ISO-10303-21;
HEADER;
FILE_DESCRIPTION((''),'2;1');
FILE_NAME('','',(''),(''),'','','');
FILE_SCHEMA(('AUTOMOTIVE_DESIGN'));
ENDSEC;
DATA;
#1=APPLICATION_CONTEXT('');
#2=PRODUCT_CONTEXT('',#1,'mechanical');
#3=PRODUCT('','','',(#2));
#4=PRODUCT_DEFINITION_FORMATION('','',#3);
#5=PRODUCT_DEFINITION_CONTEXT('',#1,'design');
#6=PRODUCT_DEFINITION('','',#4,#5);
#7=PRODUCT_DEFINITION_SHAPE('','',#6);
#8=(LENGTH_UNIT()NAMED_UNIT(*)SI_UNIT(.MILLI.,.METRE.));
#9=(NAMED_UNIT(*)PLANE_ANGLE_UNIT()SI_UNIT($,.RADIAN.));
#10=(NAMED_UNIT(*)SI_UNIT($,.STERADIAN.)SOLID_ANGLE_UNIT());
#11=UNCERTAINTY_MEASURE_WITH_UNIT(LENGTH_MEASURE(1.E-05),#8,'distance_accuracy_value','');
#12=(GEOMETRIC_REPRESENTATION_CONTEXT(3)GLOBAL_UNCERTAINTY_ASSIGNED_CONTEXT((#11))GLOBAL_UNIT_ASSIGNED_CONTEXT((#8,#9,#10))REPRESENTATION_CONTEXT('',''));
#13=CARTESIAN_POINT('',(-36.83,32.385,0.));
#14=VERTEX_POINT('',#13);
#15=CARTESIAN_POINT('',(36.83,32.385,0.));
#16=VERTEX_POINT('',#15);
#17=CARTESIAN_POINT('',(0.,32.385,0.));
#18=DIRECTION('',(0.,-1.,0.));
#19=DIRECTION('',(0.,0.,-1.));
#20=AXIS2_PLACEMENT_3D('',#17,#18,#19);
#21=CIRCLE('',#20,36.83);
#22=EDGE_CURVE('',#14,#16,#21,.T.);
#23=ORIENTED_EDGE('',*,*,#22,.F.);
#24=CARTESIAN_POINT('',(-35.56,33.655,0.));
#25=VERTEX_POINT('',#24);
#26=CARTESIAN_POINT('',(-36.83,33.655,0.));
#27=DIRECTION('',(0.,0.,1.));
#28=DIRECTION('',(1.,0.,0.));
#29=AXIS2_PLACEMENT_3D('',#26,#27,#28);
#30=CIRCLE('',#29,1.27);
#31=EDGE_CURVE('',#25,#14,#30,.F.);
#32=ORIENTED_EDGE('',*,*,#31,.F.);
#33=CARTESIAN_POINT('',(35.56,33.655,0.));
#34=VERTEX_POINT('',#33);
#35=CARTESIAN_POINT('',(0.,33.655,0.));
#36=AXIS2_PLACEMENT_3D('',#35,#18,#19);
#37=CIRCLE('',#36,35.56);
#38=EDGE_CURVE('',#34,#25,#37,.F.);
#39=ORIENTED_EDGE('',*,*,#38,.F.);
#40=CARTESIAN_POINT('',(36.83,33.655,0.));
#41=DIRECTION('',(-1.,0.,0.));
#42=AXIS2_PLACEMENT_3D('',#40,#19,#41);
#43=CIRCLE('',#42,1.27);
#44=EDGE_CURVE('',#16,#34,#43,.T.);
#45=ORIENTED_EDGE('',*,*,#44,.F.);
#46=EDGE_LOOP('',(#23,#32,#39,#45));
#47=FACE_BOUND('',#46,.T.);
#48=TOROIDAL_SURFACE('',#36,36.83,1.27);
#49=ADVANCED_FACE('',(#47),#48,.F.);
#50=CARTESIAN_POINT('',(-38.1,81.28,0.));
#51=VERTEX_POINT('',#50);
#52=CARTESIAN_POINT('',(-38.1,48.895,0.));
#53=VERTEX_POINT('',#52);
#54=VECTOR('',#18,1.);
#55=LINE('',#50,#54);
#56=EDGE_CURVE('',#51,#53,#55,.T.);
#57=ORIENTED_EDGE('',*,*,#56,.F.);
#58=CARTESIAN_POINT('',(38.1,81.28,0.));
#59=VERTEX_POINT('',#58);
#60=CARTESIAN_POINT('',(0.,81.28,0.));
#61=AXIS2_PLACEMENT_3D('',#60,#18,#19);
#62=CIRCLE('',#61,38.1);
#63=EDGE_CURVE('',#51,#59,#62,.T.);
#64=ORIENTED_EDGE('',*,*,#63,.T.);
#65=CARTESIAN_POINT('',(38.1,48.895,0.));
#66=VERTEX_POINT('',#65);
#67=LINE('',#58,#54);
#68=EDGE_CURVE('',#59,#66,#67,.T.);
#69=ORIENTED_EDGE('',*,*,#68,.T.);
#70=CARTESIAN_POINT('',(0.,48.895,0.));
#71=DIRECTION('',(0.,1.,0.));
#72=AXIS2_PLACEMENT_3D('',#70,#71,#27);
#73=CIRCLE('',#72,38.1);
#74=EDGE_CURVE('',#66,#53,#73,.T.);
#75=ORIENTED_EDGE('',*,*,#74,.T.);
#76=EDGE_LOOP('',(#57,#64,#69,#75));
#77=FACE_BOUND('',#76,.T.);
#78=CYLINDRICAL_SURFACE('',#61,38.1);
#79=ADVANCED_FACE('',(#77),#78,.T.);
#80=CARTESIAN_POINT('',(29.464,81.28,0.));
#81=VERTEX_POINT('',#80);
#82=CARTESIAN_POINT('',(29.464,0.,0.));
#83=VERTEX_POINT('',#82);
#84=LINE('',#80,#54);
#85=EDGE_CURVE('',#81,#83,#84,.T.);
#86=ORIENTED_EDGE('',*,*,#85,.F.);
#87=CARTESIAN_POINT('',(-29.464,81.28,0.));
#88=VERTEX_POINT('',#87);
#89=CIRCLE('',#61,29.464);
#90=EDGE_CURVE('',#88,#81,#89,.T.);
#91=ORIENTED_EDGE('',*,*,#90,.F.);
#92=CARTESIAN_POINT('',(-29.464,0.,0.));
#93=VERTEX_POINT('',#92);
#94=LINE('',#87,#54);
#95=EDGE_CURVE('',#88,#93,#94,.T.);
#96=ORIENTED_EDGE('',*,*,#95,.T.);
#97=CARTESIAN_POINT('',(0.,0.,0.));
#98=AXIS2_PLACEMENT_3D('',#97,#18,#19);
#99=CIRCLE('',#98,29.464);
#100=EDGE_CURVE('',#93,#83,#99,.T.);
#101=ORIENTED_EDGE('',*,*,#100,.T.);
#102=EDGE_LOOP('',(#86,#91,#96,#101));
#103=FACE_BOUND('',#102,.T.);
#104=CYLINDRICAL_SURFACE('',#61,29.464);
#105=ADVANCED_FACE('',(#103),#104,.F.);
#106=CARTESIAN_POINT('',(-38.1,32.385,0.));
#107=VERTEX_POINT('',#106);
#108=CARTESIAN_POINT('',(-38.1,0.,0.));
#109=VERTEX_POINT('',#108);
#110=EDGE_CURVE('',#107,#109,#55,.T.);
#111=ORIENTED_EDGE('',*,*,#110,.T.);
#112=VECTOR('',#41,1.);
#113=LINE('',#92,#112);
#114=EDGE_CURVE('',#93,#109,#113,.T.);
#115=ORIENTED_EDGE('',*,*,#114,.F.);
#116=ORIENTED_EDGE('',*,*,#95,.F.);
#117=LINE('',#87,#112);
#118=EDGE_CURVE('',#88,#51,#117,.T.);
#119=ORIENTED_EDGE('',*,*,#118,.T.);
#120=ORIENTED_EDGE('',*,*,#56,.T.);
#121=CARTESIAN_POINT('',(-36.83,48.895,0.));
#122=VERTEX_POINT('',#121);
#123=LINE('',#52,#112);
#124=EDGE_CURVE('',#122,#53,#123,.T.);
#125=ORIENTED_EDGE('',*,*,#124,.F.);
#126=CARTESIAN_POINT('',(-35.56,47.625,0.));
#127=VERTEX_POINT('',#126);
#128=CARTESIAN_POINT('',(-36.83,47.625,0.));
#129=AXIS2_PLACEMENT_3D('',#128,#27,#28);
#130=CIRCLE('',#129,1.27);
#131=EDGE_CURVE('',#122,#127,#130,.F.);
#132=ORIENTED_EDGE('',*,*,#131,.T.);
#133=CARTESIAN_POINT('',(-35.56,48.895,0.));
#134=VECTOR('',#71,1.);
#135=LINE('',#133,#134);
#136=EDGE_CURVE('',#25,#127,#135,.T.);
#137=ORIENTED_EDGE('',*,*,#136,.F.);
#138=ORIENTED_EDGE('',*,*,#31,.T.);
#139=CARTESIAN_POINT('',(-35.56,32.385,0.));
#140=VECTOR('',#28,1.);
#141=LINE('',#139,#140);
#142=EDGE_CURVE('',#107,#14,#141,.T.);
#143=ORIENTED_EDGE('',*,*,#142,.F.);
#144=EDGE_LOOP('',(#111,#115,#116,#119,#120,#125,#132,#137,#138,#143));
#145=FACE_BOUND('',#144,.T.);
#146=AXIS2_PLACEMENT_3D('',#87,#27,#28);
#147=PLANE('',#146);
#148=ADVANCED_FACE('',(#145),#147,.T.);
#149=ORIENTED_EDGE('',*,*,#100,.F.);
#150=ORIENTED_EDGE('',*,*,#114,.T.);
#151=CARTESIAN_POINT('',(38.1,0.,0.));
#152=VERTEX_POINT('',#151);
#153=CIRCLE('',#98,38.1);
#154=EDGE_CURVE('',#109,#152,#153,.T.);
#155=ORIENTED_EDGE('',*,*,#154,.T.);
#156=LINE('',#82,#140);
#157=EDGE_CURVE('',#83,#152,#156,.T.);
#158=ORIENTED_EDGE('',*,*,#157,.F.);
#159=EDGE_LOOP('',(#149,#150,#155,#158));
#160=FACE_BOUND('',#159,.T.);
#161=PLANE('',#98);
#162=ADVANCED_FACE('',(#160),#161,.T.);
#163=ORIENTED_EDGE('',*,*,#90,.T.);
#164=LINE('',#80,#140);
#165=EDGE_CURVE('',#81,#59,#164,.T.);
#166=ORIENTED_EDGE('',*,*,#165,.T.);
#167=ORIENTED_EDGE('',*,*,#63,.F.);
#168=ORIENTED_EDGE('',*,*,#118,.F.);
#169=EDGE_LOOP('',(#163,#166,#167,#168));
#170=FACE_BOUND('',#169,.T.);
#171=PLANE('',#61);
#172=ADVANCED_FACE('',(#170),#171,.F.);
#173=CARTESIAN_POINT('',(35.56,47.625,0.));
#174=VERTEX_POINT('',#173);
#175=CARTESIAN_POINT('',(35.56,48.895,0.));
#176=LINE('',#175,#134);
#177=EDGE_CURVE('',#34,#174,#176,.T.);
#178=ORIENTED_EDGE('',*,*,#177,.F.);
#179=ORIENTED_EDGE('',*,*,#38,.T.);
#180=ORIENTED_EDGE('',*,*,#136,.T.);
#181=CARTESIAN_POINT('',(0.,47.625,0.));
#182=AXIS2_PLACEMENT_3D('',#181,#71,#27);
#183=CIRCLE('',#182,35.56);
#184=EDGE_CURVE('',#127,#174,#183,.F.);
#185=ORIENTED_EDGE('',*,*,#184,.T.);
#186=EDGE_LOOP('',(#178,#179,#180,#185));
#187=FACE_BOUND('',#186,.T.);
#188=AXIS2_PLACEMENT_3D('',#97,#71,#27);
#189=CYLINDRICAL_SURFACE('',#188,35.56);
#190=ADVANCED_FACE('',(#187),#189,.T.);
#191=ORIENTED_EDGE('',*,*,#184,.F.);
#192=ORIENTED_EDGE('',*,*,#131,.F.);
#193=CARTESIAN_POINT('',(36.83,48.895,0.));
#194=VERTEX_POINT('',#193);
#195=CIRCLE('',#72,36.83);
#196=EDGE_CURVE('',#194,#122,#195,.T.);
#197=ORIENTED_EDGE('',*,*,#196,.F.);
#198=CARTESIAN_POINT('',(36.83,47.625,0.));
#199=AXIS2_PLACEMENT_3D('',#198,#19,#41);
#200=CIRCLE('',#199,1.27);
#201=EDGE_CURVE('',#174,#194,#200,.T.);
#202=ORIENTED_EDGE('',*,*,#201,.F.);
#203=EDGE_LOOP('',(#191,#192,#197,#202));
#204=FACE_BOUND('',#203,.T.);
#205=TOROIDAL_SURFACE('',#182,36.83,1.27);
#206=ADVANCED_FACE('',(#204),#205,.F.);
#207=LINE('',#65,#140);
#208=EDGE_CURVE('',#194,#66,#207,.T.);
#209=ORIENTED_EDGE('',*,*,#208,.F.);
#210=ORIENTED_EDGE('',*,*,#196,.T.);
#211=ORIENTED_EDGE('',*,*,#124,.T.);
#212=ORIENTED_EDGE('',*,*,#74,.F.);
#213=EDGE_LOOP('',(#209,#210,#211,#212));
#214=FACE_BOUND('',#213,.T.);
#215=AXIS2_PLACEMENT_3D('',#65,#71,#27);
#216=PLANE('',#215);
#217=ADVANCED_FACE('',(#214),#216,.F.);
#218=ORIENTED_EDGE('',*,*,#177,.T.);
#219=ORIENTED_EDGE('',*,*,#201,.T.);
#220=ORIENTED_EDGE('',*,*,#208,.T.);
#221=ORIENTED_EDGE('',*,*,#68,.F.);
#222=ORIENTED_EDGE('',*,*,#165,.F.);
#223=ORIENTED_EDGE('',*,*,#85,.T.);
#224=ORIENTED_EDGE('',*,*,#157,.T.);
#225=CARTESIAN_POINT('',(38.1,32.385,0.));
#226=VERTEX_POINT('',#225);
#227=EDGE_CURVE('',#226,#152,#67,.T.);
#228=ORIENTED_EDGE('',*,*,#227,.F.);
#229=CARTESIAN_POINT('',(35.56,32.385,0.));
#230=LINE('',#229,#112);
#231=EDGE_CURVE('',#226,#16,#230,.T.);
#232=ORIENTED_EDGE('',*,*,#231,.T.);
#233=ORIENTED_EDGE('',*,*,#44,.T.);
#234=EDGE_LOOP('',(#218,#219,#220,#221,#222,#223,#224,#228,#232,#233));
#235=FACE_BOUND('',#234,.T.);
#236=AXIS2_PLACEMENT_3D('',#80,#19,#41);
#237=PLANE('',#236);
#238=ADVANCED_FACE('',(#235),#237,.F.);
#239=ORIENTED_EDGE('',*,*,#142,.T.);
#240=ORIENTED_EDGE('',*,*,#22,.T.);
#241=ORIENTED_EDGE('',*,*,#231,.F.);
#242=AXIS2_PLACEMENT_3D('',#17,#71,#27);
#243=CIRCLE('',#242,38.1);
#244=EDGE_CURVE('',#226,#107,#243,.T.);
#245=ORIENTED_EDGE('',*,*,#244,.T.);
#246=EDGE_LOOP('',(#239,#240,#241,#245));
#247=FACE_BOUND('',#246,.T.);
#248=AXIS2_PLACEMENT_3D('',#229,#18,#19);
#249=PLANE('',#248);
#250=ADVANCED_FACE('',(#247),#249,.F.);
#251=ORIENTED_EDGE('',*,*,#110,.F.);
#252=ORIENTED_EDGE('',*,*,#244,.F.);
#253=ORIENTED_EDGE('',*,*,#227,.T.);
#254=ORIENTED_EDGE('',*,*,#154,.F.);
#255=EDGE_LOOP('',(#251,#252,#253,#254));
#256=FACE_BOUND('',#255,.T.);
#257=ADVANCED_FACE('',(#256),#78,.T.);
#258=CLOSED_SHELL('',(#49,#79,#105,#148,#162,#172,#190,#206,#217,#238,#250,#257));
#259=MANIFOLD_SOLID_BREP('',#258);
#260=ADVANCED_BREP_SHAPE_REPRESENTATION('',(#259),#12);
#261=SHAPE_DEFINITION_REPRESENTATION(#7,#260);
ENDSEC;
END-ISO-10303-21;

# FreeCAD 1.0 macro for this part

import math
import FreeCAD as App
import Part
import Sketcher

V = App.Vector
Q = App.Units.Quantity


def edges_at(feature, points):
    """Names of the edges that pass closest to the given points."""
    edges = feature.Shape.Edges
    near = lambda p: min(range(len(edges)), key=lambda i: edges[i].distToShape(Part.Vertex(*p))[0])
    return sorted({f"Edge{near(p) + 1}" for p in points})

doc = App.newDocument("Part")
body = doc.addObject("PartDesign::Body", "Body")

sketch1 = body.newObject("Sketcher::SketchObject", "Sketch")
sketch1.AttachmentSupport = (doc.getObject("XZ_Plane"), [""])
sketch1.MapMode = "FlatFace"
sketch1.addGeometry([
    Part.LineSegment(V(-38.1, 0, 0), V(-29.464, 0, 0)),
    Part.ArcOfCircle(Part.Circle(V(0, 0, 0), V(0, 0, 1), 29.464), math.radians(180), math.radians(360)),
    Part.LineSegment(V(29.464, 0, 0), V(38.1, 0, 0)),
    Part.ArcOfCircle(Part.Circle(V(0, 0, 0), V(0, 0, 1), 38.1), math.radians(180), math.radians(360)),
], False)
sketch1.addConstraint([
    Sketcher.Constraint("Coincident", 0, 2, 1, 1),
    Sketcher.Constraint("Coincident", 1, 2, 2, 1),
    Sketcher.Constraint("Coincident", 2, 2, 3, 2),
    Sketcher.Constraint("Coincident", 3, 1, 0, 1),
    Sketcher.Constraint("Horizontal", 0),
    Sketcher.Constraint("Horizontal", 2),
    Sketcher.Constraint("Coincident", 1, 3, -1, 1),
    Sketcher.Constraint("Coincident", 3, 3, -1, 1),
    Sketcher.Constraint("PointOnObject", 0, 2, -1),
    Sketcher.Constraint("PointOnObject", 1, 2, -1),
    Sketcher.Constraint("Radius", 3, Q("1.5 in")),
    Sketcher.Constraint("Radius", 1, Q("1.16 in")),
])
pad1 = body.newObject("PartDesign::Pad", "Pad")
pad1.Profile = sketch1
pad1.Length = Q("3.2 in")
pad1.Reversed = True

sketch2 = body.newObject("Sketcher::SketchObject", "Sketch001")
sketch2.AttachmentSupport = (doc.getObject("XY_Plane"), [""])
sketch2.MapMode = "FlatFace"
sketch2.addGeometry([
    Part.LineSegment(V(-38.1, 48.895, 0), V(-38.1, 32.385, 0)),
    Part.LineSegment(V(-38.1, 32.385, 0), V(-35.56, 32.385, 0)),
    Part.LineSegment(V(-35.56, 32.385, 0), V(-35.56, 48.895, 0)),
    Part.LineSegment(V(-35.56, 48.895, 0), V(-38.1, 48.895, 0)),
], False)
sketch2.addConstraint([
    Sketcher.Constraint("Coincident", 0, 2, 1, 1),
    Sketcher.Constraint("Coincident", 1, 2, 2, 1),
    Sketcher.Constraint("Coincident", 2, 2, 3, 1),
    Sketcher.Constraint("Coincident", 3, 2, 0, 1),
    Sketcher.Constraint("Vertical", 0),
    Sketcher.Constraint("Horizontal", 1),
    Sketcher.Constraint("Vertical", 2),
    Sketcher.Constraint("Horizontal", 3),
    Sketcher.Constraint("DistanceX", 1, 1, 1, 2, Q("0.1 in")),
    Sketcher.Constraint("DistanceY", 0, 2, 0, 1, Q("0.65 in")),
    Sketcher.Constraint("DistanceX", 0, 2, -1, 1, Q("1.5 in")),
    Sketcher.Constraint("DistanceY", -1, 1, 0, 2, Q("1.275 in")),
])
groove = body.newObject("PartDesign::Groove", "Groove")
groove.Profile = sketch2
groove.ReferenceAxis = (sketch2, ["V_Axis"])
groove.Angle = 180
groove.Reversed = True
doc.recompute()

fillet = body.newObject("PartDesign::Fillet", "Fillet")
fillet.Base = (groove, edges_at(groove, [(0, 48.895, -35.56), (0, 32.385, -35.56)]))
fillet.Radius = Q("0.05 in")

doc.recompute()
